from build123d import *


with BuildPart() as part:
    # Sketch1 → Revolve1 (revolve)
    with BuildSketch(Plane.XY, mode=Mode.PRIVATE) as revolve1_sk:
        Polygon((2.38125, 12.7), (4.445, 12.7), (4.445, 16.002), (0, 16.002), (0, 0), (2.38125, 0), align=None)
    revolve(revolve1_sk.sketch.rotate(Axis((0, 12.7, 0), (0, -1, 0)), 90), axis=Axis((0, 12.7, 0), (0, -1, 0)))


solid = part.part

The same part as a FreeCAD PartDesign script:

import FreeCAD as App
import Part
import Sketcher
Q = App.Units.Quantity

doc = App.newDocument("Part")
params = doc.addObject("Spreadsheet::Sheet", "Params")
for row, (alias, value) in enumerate([
    ("sketch1_height", "0.5 in"),
    ("sketch1_height2", "0.13 in"),
    ("sketch1_width", "0.175 in"),
    ("sketch1_width2", "0.09375 in"),
    ("revolution_angle", "360 deg"),
], start=1):
    params.set(f"A{row}", alias)
    params.set(f"B{row}", "=" + value)
    params.setAlias(f"B{row}", alias)

body = doc.addObject("PartDesign::Body", "Body")

# Sketch on XY plane
sketch1 = body.newObject("Sketcher::SketchObject", "Sketch")
sketch1.AttachmentSupport = (doc.getObject("XY_Plane"), [""])
sketch1.MapMode = "FlatFace"
sketch1.addGeometry([
    Part.LineSegment(App.Vector(2.4, 12.7, 0), App.Vector(4.4, 12.7, 0)),  # 0
    Part.LineSegment(App.Vector(4.4, 12.7, 0), App.Vector(4.4, 16, 0)),  # 1
    Part.LineSegment(App.Vector(4.4, 16, 0), App.Vector(0, 16, 0)),  # 2
    Part.LineSegment(App.Vector(0, 16, 0), App.Vector(0, 0, 0)),  # 3
    Part.LineSegment(App.Vector(0, 0, 0), App.Vector(2.4, 0, 0)),  # 4
    Part.LineSegment(App.Vector(2.4, 0, 0), App.Vector(2.4, 12.7, 0)),  # 5
], False)
sketch1.addConstraint([
    Sketcher.Constraint("Coincident", 0, 2, 1, 1),
    Sketcher.Constraint("Coincident", 1, 2, 2, 1),
    Sketcher.Constraint("Coincident", 2, 2, 3, 1),
    Sketcher.Constraint("Coincident", 3, 2, 4, 1),
    Sketcher.Constraint("Coincident", 4, 2, 5, 1),
    Sketcher.Constraint("Coincident", 5, 2, 0, 1),
    Sketcher.Constraint("Horizontal", 0),
    Sketcher.Constraint("Vertical", 1),
    Sketcher.Constraint("Horizontal", 2),
    Sketcher.Constraint("Vertical", 3),
    Sketcher.Constraint("Horizontal", 4),
    Sketcher.Constraint("Vertical", 5),
    Sketcher.Constraint("Coincident", 3, 2, -1, 1),
    Sketcher.Constraint("DistanceY", 5, 1, 5, 2, Q("0.5 in")),
    Sketcher.Constraint("DistanceY", 1, 1, 1, 2, Q("0.13 in")),
    Sketcher.Constraint("DistanceX", 2, 2, 2, 1, Q("0.175 in")),
    Sketcher.Constraint("DistanceX", 4, 1, 4, 2, Q("0.09375 in")),
])
sketch1.setExpression("Constraints[13]", "Params.sketch1_height")
sketch1.setExpression("Constraints[14]", "Params.sketch1_height2")
sketch1.setExpression("Constraints[15]", "Params.sketch1_width")
sketch1.setExpression("Constraints[16]", "Params.sketch1_width2")
revolution = body.newObject("PartDesign::Revolution", "Revolution")
revolution.Profile = sketch1
revolution.ReferenceAxis = (sketch1, ["V_Axis"])
revolution.setExpression("Angle", "Params.revolution_angle")

doc.recompute()
